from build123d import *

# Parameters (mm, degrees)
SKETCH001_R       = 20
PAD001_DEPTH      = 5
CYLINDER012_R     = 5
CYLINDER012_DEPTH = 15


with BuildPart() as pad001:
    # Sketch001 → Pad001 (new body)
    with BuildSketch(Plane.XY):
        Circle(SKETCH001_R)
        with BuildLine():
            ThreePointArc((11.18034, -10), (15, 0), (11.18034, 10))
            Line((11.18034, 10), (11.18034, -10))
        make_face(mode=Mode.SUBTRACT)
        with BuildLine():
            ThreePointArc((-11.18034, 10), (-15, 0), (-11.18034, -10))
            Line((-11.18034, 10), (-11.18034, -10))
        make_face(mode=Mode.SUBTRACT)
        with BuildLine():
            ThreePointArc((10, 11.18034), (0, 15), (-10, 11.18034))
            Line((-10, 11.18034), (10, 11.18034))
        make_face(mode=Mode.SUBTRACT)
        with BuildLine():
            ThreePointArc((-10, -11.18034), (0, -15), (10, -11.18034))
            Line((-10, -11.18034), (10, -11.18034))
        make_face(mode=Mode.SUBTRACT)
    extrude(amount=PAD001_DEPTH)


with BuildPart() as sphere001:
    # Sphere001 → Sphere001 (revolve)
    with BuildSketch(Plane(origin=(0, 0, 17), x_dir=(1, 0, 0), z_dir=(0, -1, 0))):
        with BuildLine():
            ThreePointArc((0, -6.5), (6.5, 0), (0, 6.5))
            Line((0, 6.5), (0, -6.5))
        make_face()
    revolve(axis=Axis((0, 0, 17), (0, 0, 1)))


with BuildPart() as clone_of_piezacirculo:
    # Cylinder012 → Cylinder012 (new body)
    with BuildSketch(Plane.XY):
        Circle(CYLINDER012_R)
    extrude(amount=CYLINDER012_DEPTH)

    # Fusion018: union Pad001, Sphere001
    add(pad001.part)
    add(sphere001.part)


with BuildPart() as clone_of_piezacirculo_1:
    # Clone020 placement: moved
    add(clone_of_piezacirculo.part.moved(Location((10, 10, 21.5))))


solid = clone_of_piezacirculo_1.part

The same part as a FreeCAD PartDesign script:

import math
import FreeCAD as App
import Part
import Sketcher
from FreeCAD import Vector
Q = App.Units.Quantity

doc = App.newDocument("Part")
body = doc.addObject("PartDesign::Body", "Body")

# Sketch on XY plane
sketch1 = body.newObject("Sketcher::SketchObject", "Sketch")
sketch1.AttachmentSupport = (doc.getObject("XY_Plane"), [""])
sketch1.MapMode = "FlatFace"
sketch1.addGeometry([
    Part.Circle(Vector(0, 0, 0), Vector(0, 0, 1), 20),  # 0
    Part.ArcOfCircle(Part.Circle(Vector(0, 0, 0), Vector(0, 0, 1), 15), math.radians(-132), math.radians(-48)),  # 1
    Part.LineSegment(Vector(-10, -11, 0), Vector(10, -11, 0)),  # 2
    Part.ArcOfCircle(Part.Circle(Vector(0, 0, 0), Vector(0, 0, 1), 15), math.radians(138), math.radians(222)),  # 3
    Part.LineSegment(Vector(-11, 10, 0), Vector(-11, -10, 0)),  # 4
    Part.ArcOfCircle(Part.Circle(Vector(0, 0, 0), Vector(0, 0, 1), 15), math.radians(48), math.radians(132)),  # 5
    Part.LineSegment(Vector(10, 11, 0), Vector(-10, 11, 0)),  # 6
    Part.ArcOfCircle(Part.Circle(Vector(0, 0, 0), Vector(0, 0, 1), 15), math.radians(-42), math.radians(42)),  # 7
    Part.LineSegment(Vector(11, -10, 0), Vector(11, 10, 0)),  # 8
], False)
sketch1.addConstraint([
    Sketcher.Constraint("Coincident", 1, 1, 2, 1),
    Sketcher.Constraint("Coincident", 2, 2, 1, 2),
    Sketcher.Constraint("Coincident", 3, 1, 4, 1),
    Sketcher.Constraint("Coincident", 4, 2, 3, 2),
    Sketcher.Constraint("Coincident", 5, 1, 6, 1),
    Sketcher.Constraint("Coincident", 6, 2, 5, 2),
    Sketcher.Constraint("Coincident", 7, 1, 8, 1),
    Sketcher.Constraint("Coincident", 8, 2, 7, 2),
    Sketcher.Constraint("Horizontal", 2),
    Sketcher.Constraint("Vertical", 4),
    Sketcher.Constraint("Horizontal", 6),
    Sketcher.Constraint("Vertical", 8),
    Sketcher.Constraint("Coincident", 0, 3, -1, 1),
    Sketcher.Constraint("Coincident", 1, 3, -1, 1),
    Sketcher.Constraint("Coincident", 3, 3, -1, 1),
    Sketcher.Constraint("Coincident", 5, 3, -1, 1),
    Sketcher.Constraint("Coincident", 7, 3, -1, 1),
    Sketcher.Constraint("Equal", 1, 3),
    Sketcher.Constraint("Equal", 3, 5),
    Sketcher.Constraint("Equal", 5, 7),
    Sketcher.Constraint("Horizontal", 4, 2, 7, 1),
    Sketcher.Constraint("Vertical", 2, 2, 5, 1),
    Sketcher.Constraint("Equal", 6, 4),
    Sketcher.Constraint("Diameter", 0, Q("40 mm")),
    Sketcher.Constraint("Radius", 1, Q("15 mm")),
    Sketcher.Constraint("DistanceX", 2, 1, 2, 2, Q("20 mm")),
])
pad1 = body.newObject("PartDesign::Pad", "Pad")
pad1.Profile = sketch1
pad1.Length = 5
body2 = doc.addObject("PartDesign::Body", "Body001")

# Sketch on XZ plane
sketch2 = body2.newObject("Sketcher::SketchObject", "Sketch001")
sketch2.AttachmentSupport = (doc.getObject("XZ_Plane001"), [""])
sketch2.MapMode = "FlatFace"
sketch2.addGeometry([
    Part.ArcOfCircle(Part.Circle(Vector(0, 17, 0), Vector(0, 0, 1), 6), math.radians(-90), math.radians(90)),
    Part.LineSegment(Vector(0, 24, 0), Vector(0, 10, 0)),
], False)
sketch2.addConstraint([
    Sketcher.Constraint("Coincident", 0, 1, 1, 2),
    Sketcher.Constraint("Coincident", 1, 1, 0, 2),
    Sketcher.Constraint("Vertical", 1),
    Sketcher.Constraint("PointOnObject", 0, 3, -2),
    Sketcher.Constraint("PointOnObject", 0, 1, -2),
    Sketcher.Constraint("Radius", 0, Q("6.5 mm")),
    Sketcher.Constraint("DistanceY", -1, 1, 0, 3, Q("17 mm")),
])
revolution = body2.newObject("PartDesign::Revolution", "Revolution")
revolution.Profile = sketch2
revolution.ReferenceAxis = (sketch2, ["V_Axis"])
revolution.Angle = 360
body3 = doc.addObject("PartDesign::Body", "Body002")

# Sketch on XY plane
sketch3 = body3.newObject("Sketcher::SketchObject", "Sketch002")
sketch3.AttachmentSupport = (doc.getObject("XY_Plane002"), [""])
sketch3.MapMode = "FlatFace"
sketch3.addGeometry(Part.Circle(Vector(0, 0, 0), Vector(0, 0, 1), 5), False)
sketch3.addConstraint([
    Sketcher.Constraint("Coincident", 0, 3, -1, 1),
    Sketcher.Constraint("Diameter", 0, Q("10 mm")),
])
pad2 = body3.newObject("PartDesign::Pad", "Pad001")
pad2.Profile = sketch3
pad2.Length = 15
doc.recompute()

boolean = body3.newObject("PartDesign::Boolean", "Boolean")
boolean.Type = "Fuse"
boolean.addObjects([body])
doc.recompute()

boolean2 = body3.newObject("PartDesign::Boolean", "Boolean001")
boolean2.Type = "Fuse"
boolean2.addObjects([body2])
body4 = doc.addObject("PartDesign::Body", "Body003")
doc.recompute()

body3.Placement = App.Placement(Vector(10, 10, 21.5), App.Rotation(Vector(0, 0, 1), 0))
boolean3 = body4.newObject("PartDesign::Boolean", "Boolean002")
boolean3.Type = "Fuse"
boolean3.addObjects([body3])

doc.recompute()
